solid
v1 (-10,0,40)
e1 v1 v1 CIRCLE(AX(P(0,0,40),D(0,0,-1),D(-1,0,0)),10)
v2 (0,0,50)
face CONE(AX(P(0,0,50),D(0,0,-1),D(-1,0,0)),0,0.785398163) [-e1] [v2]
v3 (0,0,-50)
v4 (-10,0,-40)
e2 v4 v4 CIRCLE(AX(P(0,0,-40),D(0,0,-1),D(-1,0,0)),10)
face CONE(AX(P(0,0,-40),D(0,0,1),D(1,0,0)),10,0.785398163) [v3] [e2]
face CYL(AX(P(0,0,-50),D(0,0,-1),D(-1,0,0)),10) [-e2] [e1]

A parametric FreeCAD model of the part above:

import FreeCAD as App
import Part
import Sketcher

doc = App.newDocument("Part")
body = doc.addObject("PartDesign::Body", "Body")

# Sketch on XZ plane
sketch1 = body.newObject("Sketcher::SketchObject", "Sketch")
sketch1.AttachmentSupport = (doc.getObject("XZ_Plane"), [""])
sketch1.MapMode = "FlatFace"
sketch1.addGeometry([
    Part.LineSegment(App.Vector(0, -50, 0), App.Vector(0, 50, 0)),
    Part.LineSegment(App.Vector(0, 50, 0), App.Vector(10, 40, 0)),
    Part.LineSegment(App.Vector(10, 40, 0), App.Vector(10, -40, 0)),
    Part.LineSegment(App.Vector(10, -40, 0), App.Vector(0, -50, 0)),
], False)
sketch1.addConstraint([
    Sketcher.Constraint("Coincident", 0, 2, 1, 1),
    Sketcher.Constraint("Coincident", 1, 2, 2, 1),
    Sketcher.Constraint("Coincident", 2, 2, 3, 1),
    Sketcher.Constraint("Coincident", 3, 2, 0, 1),
    Sketcher.Constraint("Vertical", 0),
    Sketcher.Constraint("Vertical", 2),
    Sketcher.Constraint("Symmetric", 0, 2, 3, 2, -1, 1),
    Sketcher.Constraint("Perpendicular", 1, 3),
    Sketcher.Constraint("Equal", 1, 3),
    Sketcher.Constraint("DistanceY", 0, 1, 0, 2, 100.0),
    Sketcher.Constraint("DistanceY", 2, 2, 2, 1, 80.0),
])
revolution = body.newObject("PartDesign::Revolution", "Revolution")
revolution.Profile = sketch1
revolution.ReferenceAxis = (sketch1, ["V_Axis"])
revolution.Angle = 360

doc.recompute()
